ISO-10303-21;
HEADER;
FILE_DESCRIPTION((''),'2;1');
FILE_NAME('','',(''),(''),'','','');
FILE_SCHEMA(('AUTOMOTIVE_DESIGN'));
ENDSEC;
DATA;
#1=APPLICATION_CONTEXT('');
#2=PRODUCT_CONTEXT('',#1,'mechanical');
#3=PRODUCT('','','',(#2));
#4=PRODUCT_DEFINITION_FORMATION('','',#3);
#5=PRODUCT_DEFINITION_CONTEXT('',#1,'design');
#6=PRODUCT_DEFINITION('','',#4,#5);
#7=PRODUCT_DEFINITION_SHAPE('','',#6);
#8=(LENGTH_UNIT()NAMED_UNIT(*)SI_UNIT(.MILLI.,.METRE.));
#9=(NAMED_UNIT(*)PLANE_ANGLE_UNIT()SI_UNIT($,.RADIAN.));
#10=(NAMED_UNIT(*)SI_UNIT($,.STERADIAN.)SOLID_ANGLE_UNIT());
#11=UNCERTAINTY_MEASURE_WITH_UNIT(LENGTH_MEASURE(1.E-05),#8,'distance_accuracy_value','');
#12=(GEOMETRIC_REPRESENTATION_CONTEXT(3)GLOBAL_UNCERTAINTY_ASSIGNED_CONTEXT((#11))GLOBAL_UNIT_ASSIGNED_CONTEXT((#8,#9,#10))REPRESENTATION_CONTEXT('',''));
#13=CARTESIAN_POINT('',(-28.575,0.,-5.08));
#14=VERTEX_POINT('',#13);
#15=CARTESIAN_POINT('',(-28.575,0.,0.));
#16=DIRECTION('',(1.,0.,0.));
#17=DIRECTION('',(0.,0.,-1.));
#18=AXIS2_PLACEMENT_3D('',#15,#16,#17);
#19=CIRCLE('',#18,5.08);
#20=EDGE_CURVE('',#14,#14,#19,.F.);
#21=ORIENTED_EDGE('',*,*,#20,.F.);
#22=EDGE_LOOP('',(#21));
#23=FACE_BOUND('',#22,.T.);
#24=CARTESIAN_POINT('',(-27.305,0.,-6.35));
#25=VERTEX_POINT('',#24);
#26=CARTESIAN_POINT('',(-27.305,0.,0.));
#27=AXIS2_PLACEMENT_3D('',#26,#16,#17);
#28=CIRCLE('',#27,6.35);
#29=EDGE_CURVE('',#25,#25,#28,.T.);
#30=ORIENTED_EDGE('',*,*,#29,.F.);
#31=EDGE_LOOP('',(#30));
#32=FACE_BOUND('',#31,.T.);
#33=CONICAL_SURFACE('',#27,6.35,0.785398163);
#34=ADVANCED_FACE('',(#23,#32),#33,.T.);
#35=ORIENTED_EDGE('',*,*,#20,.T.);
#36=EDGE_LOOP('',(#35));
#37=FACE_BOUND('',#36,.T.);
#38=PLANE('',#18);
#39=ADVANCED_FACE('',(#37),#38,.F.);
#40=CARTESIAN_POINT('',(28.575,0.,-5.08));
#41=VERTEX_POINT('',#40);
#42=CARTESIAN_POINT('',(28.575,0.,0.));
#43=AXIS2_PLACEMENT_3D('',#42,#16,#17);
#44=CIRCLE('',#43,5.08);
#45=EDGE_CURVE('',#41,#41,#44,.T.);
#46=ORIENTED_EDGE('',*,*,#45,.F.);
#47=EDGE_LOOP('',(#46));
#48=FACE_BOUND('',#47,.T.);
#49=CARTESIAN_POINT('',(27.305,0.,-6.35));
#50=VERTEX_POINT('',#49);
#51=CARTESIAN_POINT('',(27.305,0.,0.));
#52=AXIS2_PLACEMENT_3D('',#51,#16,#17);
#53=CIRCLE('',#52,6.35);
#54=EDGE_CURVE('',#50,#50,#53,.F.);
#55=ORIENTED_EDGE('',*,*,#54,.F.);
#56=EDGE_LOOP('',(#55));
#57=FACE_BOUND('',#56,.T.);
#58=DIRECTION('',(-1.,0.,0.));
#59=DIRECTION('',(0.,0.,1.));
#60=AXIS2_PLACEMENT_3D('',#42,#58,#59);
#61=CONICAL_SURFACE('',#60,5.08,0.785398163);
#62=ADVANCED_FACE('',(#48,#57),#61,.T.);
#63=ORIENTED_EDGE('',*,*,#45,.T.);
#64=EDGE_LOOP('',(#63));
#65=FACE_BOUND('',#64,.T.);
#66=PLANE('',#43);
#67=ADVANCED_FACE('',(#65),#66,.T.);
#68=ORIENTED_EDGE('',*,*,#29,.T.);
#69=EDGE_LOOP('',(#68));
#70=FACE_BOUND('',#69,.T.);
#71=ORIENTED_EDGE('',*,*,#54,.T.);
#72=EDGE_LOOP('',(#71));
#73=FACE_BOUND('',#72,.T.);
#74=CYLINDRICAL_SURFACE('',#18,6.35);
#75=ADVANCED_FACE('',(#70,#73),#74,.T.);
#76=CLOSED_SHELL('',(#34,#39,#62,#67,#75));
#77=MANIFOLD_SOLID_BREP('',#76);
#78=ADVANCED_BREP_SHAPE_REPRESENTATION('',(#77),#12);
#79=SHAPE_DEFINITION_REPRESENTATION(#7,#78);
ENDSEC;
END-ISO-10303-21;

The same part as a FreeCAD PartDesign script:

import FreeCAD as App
import Part
import Sketcher
Q = App.Units.Quantity


def edges_at(feature, points):
    """Names of the edges that pass closest to the given points."""
    edges = feature.Shape.Edges
    near = lambda p: min(range(len(edges)), key=lambda i: edges[i].distToShape(Part.Vertex(*p))[0])
    return sorted({f"Edge{near(p) + 1}" for p in points})

doc = App.newDocument("Part")
body = doc.addObject("PartDesign::Body", "Body")

# Sketch on YZ plane
sketch1 = body.newObject("Sketcher::SketchObject", "Sketch")
sketch1.AttachmentSupport = (doc.getObject("YZ_Plane"), [""])
sketch1.MapMode = "FlatFace"
sketch1.addGeometry(Part.Circle(App.Vector(0, 0, 0), App.Vector(0, 0, 1), 6), False)
sketch1.addConstraint(Sketcher.Constraint("Coincident", 0, 3, -1, 1))
sketch1.addConstraint(Sketcher.Constraint("Diameter", 0, Q("0.5 in")))
pad1 = body.newObject("PartDesign::Pad", "Pad")
pad1.Profile = sketch1
pad1.Type = "TwoLengths"
pad1.Length = Q("1.125 in")
pad1.Length2 = Q("1.125 in")
doc.recompute()

chamfer = body.newObject("PartDesign::Chamfer", "Chamfer")
chamfer.Base = (pad1, edges_at(pad1, [(-28.575, 0, 6.35), (28.575, 0, 6.35)]))
chamfer.Size = Q("0.05 in")

doc.recompute()
